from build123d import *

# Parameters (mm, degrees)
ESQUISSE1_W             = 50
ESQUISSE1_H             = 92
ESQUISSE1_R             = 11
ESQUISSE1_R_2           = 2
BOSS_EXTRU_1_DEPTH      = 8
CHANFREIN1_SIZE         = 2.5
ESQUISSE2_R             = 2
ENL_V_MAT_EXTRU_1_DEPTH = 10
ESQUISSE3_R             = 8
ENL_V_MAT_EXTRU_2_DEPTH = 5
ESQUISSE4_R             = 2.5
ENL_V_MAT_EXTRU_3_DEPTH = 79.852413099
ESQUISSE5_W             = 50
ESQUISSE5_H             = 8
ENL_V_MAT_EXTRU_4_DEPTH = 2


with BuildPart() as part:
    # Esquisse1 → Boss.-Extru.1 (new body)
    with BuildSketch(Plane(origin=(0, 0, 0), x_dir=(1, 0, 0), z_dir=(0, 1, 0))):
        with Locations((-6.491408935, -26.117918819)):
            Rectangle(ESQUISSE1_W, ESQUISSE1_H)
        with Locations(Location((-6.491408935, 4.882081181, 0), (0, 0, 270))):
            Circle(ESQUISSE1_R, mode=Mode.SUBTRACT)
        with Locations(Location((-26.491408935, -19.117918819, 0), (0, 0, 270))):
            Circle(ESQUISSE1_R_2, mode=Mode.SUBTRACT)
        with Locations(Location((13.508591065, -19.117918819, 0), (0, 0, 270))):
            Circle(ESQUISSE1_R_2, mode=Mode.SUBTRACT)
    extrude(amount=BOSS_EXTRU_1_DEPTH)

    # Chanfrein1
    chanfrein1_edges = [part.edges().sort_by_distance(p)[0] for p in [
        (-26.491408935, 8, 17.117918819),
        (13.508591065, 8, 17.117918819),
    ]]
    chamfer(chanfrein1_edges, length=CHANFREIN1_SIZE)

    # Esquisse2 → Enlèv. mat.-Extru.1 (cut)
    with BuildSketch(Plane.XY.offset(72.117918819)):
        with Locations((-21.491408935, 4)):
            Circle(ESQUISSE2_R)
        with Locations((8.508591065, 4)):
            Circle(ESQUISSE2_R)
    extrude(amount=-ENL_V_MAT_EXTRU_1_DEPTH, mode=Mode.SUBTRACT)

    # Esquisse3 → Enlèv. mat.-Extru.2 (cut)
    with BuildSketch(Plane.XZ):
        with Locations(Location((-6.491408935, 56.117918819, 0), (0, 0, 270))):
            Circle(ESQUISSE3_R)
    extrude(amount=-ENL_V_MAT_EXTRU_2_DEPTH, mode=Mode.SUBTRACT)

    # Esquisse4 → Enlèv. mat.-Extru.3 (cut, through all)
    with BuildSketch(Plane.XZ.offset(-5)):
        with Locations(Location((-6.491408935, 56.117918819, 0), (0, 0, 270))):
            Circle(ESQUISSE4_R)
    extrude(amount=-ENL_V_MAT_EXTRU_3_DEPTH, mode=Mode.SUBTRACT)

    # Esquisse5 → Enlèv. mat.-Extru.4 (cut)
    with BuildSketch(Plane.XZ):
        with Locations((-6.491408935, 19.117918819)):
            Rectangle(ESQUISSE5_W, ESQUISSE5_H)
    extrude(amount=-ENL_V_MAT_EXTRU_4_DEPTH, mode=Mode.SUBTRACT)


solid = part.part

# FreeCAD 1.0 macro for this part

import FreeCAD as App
import Part
import Sketcher
from FreeCAD import Vector
Q = App.Units.Quantity


def edges_at(feature, points):
    """Names of the edges that pass closest to the given points."""
    edges = feature.Shape.Edges
    near = lambda p: min(range(len(edges)), key=lambda i: edges[i].distToShape(Part.Vertex(*p))[0])
    return sorted({f"Edge{near(p) + 1}" for p in points})

doc = App.newDocument("Part")
body = doc.addObject("PartDesign::Body", "Body")

# Sketch on XZ plane
sketch1 = body.newObject("Sketcher::SketchObject", "Sketch")
sketch1.AttachmentSupport = (doc.getObject("XZ_Plane"), [""])
sketch1.MapMode = "FlatFace"
sketch1.addGeometry(Part.LineSegment(Vector(-31.5, -19.9, 0), Vector(-31.5, 72.1, 0)), False)
sketch1.addGeometry(Part.LineSegment(Vector(-31.5, 72.1, 0), Vector(18.5, 72.1, 0)), False)
sketch1.addGeometry(Part.LineSegment(Vector(18.5, 72.1, 0), Vector(18.5, -19.9, 0)), False)
sketch1.addGeometry(Part.LineSegment(Vector(18.5, -19.9, 0), Vector(-31.5, -19.9, 0)), False)
sketch1.addGeometry(Part.Circle(Vector(-26.5, 19.1, 0), Vector(0, 0, 1), 2), False)
sketch1.addGeometry(Part.Circle(Vector(13.5, 19.1, 0), Vector(0, 0, 1), 2), False)
sketch1.addGeometry(Part.Circle(Vector(-6.5, -4.9, 0), Vector(0, 0, 1), 11), False)
sketch1.addConstraint(Sketcher.Constraint("Coincident", 0, 2, 1, 1))
sketch1.addConstraint(Sketcher.Constraint("Coincident", 1, 2, 2, 1))
sketch1.addConstraint(Sketcher.Constraint("Coincident", 2, 2, 3, 1))
sketch1.addConstraint(Sketcher.Constraint("Coincident", 3, 2, 0, 1))
sketch1.addConstraint(Sketcher.Constraint("Vertical", 0))
sketch1.addConstraint(Sketcher.Constraint("Horizontal", 1))
sketch1.addConstraint(Sketcher.Constraint("Vertical", 2))
sketch1.addConstraint(Sketcher.Constraint("Horizontal", 3))
sketch1.addConstraint(Sketcher.Constraint("Equal", 4, 5))
sketch1.addConstraint(Sketcher.Constraint("Horizontal", 4, 3, 5, 3))
sketch1.addConstraint(Sketcher.Constraint("Diameter", 4, Q("4 mm")))
sketch1.addConstraint(Sketcher.Constraint("Diameter", 6, Q("22 mm")))
sketch1.addConstraint(Sketcher.Constraint("DistanceX", 1, 1, 1, 2, Q("50 mm")))
sketch1.addConstraint(Sketcher.Constraint("DistanceY", 0, 1, 0, 2, Q("92 mm")))
sketch1.addConstraint(Sketcher.Constraint("DistanceX", 4, 3, 5, 3, Q("40 mm")))
sketch1.addConstraint(Sketcher.Constraint("DistanceX", 4, 3, 6, 3, Q("20 mm")))
sketch1.addConstraint(Sketcher.Constraint("DistanceY", 6, 3, 4, 3, Q("24 mm")))
sketch1.addConstraint(Sketcher.Constraint("DistanceX", 0, 2, 4, 3, Q("5 mm")))
sketch1.addConstraint(Sketcher.Constraint("DistanceY", 4, 3, 0, 2, Q("53 mm")))
sketch1.addConstraint(Sketcher.Constraint("DistanceX", 4, 3, -1, 1, Q("26.491409 mm")))
sketch1.addConstraint(Sketcher.Constraint("DistanceY", -1, 1, 4, 3, Q("19.117919 mm")))
pad1 = body.newObject("PartDesign::Pad", "Pad")
pad1.Profile = sketch1
pad1.Length = 8
pad1.Reversed = True
doc.recompute()

chamfer = body.newObject("PartDesign::Chamfer", "Chamfer")
chamfer.Base = (pad1, edges_at(pad1, [(-26.491, 8, 17.118), (13.509, 8, 17.118)]))
chamfer.Size = 2.5

# Sketch on XY plane
sketch2 = body.newObject("Sketcher::SketchObject", "Sketch001")
sketch2.AttachmentSupport = (doc.getObject("XY_Plane"), [""])
sketch2.MapMode = "FlatFace"
sketch2.AttachmentOffset = App.Placement(Vector(0, 0, 72.117919), App.Rotation())
sketch2.addGeometry(Part.Circle(Vector(-21.5, 4, 0), Vector(0, 0, 1), 2), False)
sketch2.addGeometry(Part.Circle(Vector(8.5, 4, 0), Vector(0, 0, 1), 2), False)
sketch2.addConstraint(Sketcher.Constraint("Equal", 0, 1))
sketch2.addConstraint(Sketcher.Constraint("Horizontal", 0, 3, 1, 3))
sketch2.addConstraint(Sketcher.Constraint("Diameter", 0, Q("4 mm")))
sketch2.addConstraint(Sketcher.Constraint("DistanceY", -1, 1, 0, 3, Q("4 mm")))
sketch2.addConstraint(Sketcher.Constraint("DistanceX", 0, 3, 1, 3, Q("30 mm")))
sketch2.addConstraint(Sketcher.Constraint("DistanceX", 0, 3, -1, 1, Q("21.491409 mm")))
pocket1 = body.newObject("PartDesign::Pocket", "Pocket")
pocket1.Profile = sketch2
pocket1.Length = 10

# Sketch on XZ plane
sketch3 = body.newObject("Sketcher::SketchObject", "Sketch002")
sketch3.AttachmentSupport = (doc.getObject("XZ_Plane"), [""])
sketch3.MapMode = "FlatFace"
sketch3.addGeometry(Part.Circle(Vector(-6, 56, 0), Vector(0, 0, 1), 8), False)
sketch3.addConstraint(Sketcher.Constraint("Diameter", 0, Q("16 mm")))
sketch3.addConstraint(Sketcher.Constraint("DistanceX", 0, 3, -1, 1, Q("6.491409 mm")))
sketch3.addConstraint(Sketcher.Constraint("DistanceY", -1, 1, 0, 3, Q("56.117919 mm")))
pocket2 = body.newObject("PartDesign::Pocket", "Pocket001")
pocket2.Profile = sketch3
pocket2.Length = 5

# Sketch on XZ plane
sketch4 = body.newObject("Sketcher::SketchObject", "Sketch003")
sketch4.AttachmentSupport = (doc.getObject("XZ_Plane"), [""])
sketch4.MapMode = "FlatFace"
sketch4.AttachmentOffset = App.Placement(Vector(0, 0, -5), App.Rotation())
sketch4.addGeometry(Part.Circle(Vector(-6.5, 56.1, 0), Vector(0, 0, 1), 2.5), False)
sketch4.addConstraint(Sketcher.Constraint("Diameter", 0, Q("5 mm")))
sketch4.addConstraint(Sketcher.Constraint("DistanceX", 0, 3, -1, 1, Q("6.491409 mm")))
sketch4.addConstraint(Sketcher.Constraint("DistanceY", -1, 1, 0, 3, Q("56.117919 mm")))
pocket3 = body.newObject("PartDesign::Pocket", "Pocket002")
pocket3.Profile = sketch4
pocket3.Type = "ThroughAll"

# Sketch on XZ plane
sketch5 = body.newObject("Sketcher::SketchObject", "Sketch004")
sketch5.AttachmentSupport = (doc.getObject("XZ_Plane"), [""])
sketch5.MapMode = "FlatFace"
sketch5.addGeometry(Part.LineSegment(Vector(-31, 23, 0), Vector(-31, 15, 0)), False)
sketch5.addGeometry(Part.LineSegment(Vector(-31, 15, 0), Vector(19, 15, 0)), False)
sketch5.addGeometry(Part.LineSegment(Vector(19, 15, 0), Vector(19, 23, 0)), False)
sketch5.addGeometry(Part.LineSegment(Vector(19, 23, 0), Vector(-31, 23, 0)), False)
sketch5.addConstraint(Sketcher.Constraint("Coincident", 0, 2, 1, 1))
sketch5.addConstraint(Sketcher.Constraint("Coincident", 1, 2, 2, 1))
sketch5.addConstraint(Sketcher.Constraint("Coincident", 2, 2, 3, 1))
sketch5.addConstraint(Sketcher.Constraint("Coincident", 3, 2, 0, 1))
sketch5.addConstraint(Sketcher.Constraint("Vertical", 0))
sketch5.addConstraint(Sketcher.Constraint("Horizontal", 1))
sketch5.addConstraint(Sketcher.Constraint("Vertical", 2))
sketch5.addConstraint(Sketcher.Constraint("Horizontal", 3))
sketch5.addConstraint(Sketcher.Constraint("DistanceX", 1, 1, 1, 2, Q("50 mm")))
sketch5.addConstraint(Sketcher.Constraint("DistanceY", 0, 2, 0, 1, Q("8 mm")))
sketch5.addConstraint(Sketcher.Constraint("DistanceX", 0, 2, -1, 1, Q("31.491409 mm")))
sketch5.addConstraint(Sketcher.Constraint("DistanceY", -1, 1, 0, 2, Q("15.117919 mm")))
pocket4 = body.newObject("PartDesign::Pocket", "Pocket003")
pocket4.Profile = sketch5
pocket4.Length = 2

doc.recompute()
